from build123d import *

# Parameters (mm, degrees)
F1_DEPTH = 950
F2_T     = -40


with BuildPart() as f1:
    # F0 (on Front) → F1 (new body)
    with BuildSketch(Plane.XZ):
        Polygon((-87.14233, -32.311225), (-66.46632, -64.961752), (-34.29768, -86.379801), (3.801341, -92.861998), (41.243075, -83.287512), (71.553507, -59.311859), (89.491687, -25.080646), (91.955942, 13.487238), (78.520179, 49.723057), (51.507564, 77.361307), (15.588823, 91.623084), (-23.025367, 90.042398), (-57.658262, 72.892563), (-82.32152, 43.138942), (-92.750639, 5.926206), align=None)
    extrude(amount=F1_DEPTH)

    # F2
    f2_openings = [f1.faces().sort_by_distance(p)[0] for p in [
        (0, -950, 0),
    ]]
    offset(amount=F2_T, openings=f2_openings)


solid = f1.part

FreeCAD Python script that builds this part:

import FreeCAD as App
import Part
import Sketcher

V = App.Vector
Q = App.Units.Quantity


def faces_at(feature, points):
    """Names of the faces that lie closest to the given points."""
    faces = feature.Shape.Faces
    near = lambda p: min(range(len(faces)), key=lambda i: faces[i].distToShape(Part.Vertex(*p))[0])
    return sorted({f"Face{near(p) + 1}" for p in points})

doc = App.newDocument("Part")
body = doc.addObject("PartDesign::Body", "Body")

# Sketch on XZ plane
sketch1 = body.newObject("Sketcher::SketchObject", "Sketch")
sketch1.AttachmentSupport = (doc.getObject("XZ_Plane"), [""])
sketch1.MapMode = "FlatFace"
sketch1.addGeometry(Part.LineSegment(V(-87, -32, 0), V(-66, -65, 0)), False)
sketch1.addGeometry(Part.LineSegment(V(-66, -65, 0), V(-34, -86, 0)), False)
sketch1.addGeometry(Part.LineSegment(V(-34, -86, 0), V(4, -93, 0)), False)
sketch1.addGeometry(Part.LineSegment(V(4, -93, 0), V(41, -83, 0)), False)
sketch1.addGeometry(Part.LineSegment(V(41, -83, 0), V(72, -59, 0)), False)
sketch1.addGeometry(Part.LineSegment(V(72, -59, 0), V(89, -25, 0)), False)
sketch1.addGeometry(Part.LineSegment(V(89, -25, 0), V(92, 13, 0)), False)
sketch1.addGeometry(Part.LineSegment(V(92, 13, 0), V(79, 50, 0)), False)
sketch1.addGeometry(Part.LineSegment(V(79, 50, 0), V(52, 77, 0)), False)
sketch1.addGeometry(Part.LineSegment(V(52, 77, 0), V(16, 92, 0)), False)
sketch1.addGeometry(Part.LineSegment(V(16, 92, 0), V(-23, 90, 0)), False)
sketch1.addGeometry(Part.LineSegment(V(-23, 90, 0), V(-58, 73, 0)), False)
sketch1.addGeometry(Part.LineSegment(V(-58, 73, 0), V(-82, 43, 0)), False)
sketch1.addGeometry(Part.LineSegment(V(-82, 43, 0), V(-93, 6, 0)), False)
sketch1.addGeometry(Part.LineSegment(V(-93, 6, 0), V(-87, -32, 0)), False)
sketch1.addConstraint(Sketcher.Constraint("Coincident", 0, 2, 1, 1))
sketch1.addConstraint(Sketcher.Constraint("Coincident", 1, 2, 2, 1))
sketch1.addConstraint(Sketcher.Constraint("Coincident", 2, 2, 3, 1))
sketch1.addConstraint(Sketcher.Constraint("Coincident", 3, 2, 4, 1))
sketch1.addConstraint(Sketcher.Constraint("Coincident", 4, 2, 5, 1))
sketch1.addConstraint(Sketcher.Constraint("Coincident", 5, 2, 6, 1))
sketch1.addConstraint(Sketcher.Constraint("Coincident", 6, 2, 7, 1))
sketch1.addConstraint(Sketcher.Constraint("Coincident", 7, 2, 8, 1))
sketch1.addConstraint(Sketcher.Constraint("Coincident", 8, 2, 9, 1))
sketch1.addConstraint(Sketcher.Constraint("Coincident", 9, 2, 10, 1))
sketch1.addConstraint(Sketcher.Constraint("Coincident", 10, 2, 11, 1))
sketch1.addConstraint(Sketcher.Constraint("Coincident", 11, 2, 12, 1))
sketch1.addConstraint(Sketcher.Constraint("Coincident", 12, 2, 13, 1))
sketch1.addConstraint(Sketcher.Constraint("Coincident", 13, 2, 14, 1))
sketch1.addConstraint(Sketcher.Constraint("Coincident", 14, 2, 0, 1))
sketch1.addConstraint(Sketcher.Constraint("Equal", 0, 1))
sketch1.addConstraint(Sketcher.Constraint("Equal", 1, 2))
sketch1.addConstraint(Sketcher.Constraint("Equal", 2, 3))
sketch1.addConstraint(Sketcher.Constraint("Equal", 3, 4))
sketch1.addConstraint(Sketcher.Constraint("Equal", 4, 5))
sketch1.addConstraint(Sketcher.Constraint("Equal", 5, 6))
sketch1.addConstraint(Sketcher.Constraint("Equal", 6, 7))
sketch1.addConstraint(Sketcher.Constraint("Equal", 7, 8))
sketch1.addConstraint(Sketcher.Constraint("Equal", 8, 9))
sketch1.addConstraint(Sketcher.Constraint("Equal", 9, 10))
sketch1.addConstraint(Sketcher.Constraint("Equal", 10, 11))
sketch1.addConstraint(Sketcher.Constraint("Equal", 11, 12))
sketch1.addConstraint(Sketcher.Constraint("Equal", 12, 13))
sketch1.addConstraint(Sketcher.Constraint("Equal", 13, 14))
sketch1.addConstraint(Sketcher.Constraint("DistanceY", 2, 2, -1, 1, Q("92.861998 mm")))
sketch1.addConstraint(Sketcher.Constraint("DistanceY", 1, 2, -1, 1, Q("86.379801 mm")))
sketch1.addConstraint(Sketcher.Constraint("DistanceY", -1, 1, 10, 2, Q("90.042398 mm")))
sketch1.addConstraint(Sketcher.Constraint("DistanceX", 2, 2, 6, 2, Q("88.154601 mm")))
sketch1.addConstraint(Sketcher.Constraint("DistanceX", 12, 2, 0, 2, Q("15.8552 mm")))
sketch1.addConstraint(Sketcher.Constraint("Distance", 0, Q("38.64653 mm")))
sketch1.addConstraint(Sketcher.Constraint("DistanceX", 0, 2, -1, 1, Q("66.46632 mm")))
sketch1.addConstraint(Sketcher.Constraint("DistanceX", 1, 2, -1, 1, Q("34.29768 mm")))
sketch1.addConstraint(Sketcher.Constraint("DistanceY", 4, 2, -1, 1, Q("59.311859 mm")))
sketch1.addConstraint(Sketcher.Constraint("DistanceX", -1, 1, 7, 2, Q("78.520179 mm")))
sketch1.addConstraint(Sketcher.Constraint("DistanceX", 13, 2, -1, 1, Q("92.750639 mm")))
sketch1.addConstraint(Sketcher.Constraint("DistanceX", 14, 2, -1, 1, Q("87.14233 mm")))
sketch1.addConstraint(Sketcher.Constraint("DistanceY", 1, 2, 3, 2, Q("3.092289 mm")))
sketch1.addConstraint(Sketcher.Constraint("DistanceX", 4, 2, 5, 2, Q("17.93818 mm")))
sketch1.addConstraint(Sketcher.Constraint("DistanceY", 7, 2, 8, 2, Q("27.63825 mm")))
sketch1.addConstraint(Sketcher.Constraint("DistanceX", 9, 2, 8, 2, Q("35.918741 mm")))
pad1 = body.newObject("PartDesign::Pad", "Pad")
pad1.Profile = sketch1
pad1.Length = 950
doc.recompute()

thickness = body.newObject("PartDesign::Thickness", "Thickness")
thickness.Base = (pad1, faces_at(pad1, [(-0.397, -950, -0.619)]))
thickness.Value = 40
thickness.Reversed = True
thickness.Join = "Arc"

doc.recompute()
